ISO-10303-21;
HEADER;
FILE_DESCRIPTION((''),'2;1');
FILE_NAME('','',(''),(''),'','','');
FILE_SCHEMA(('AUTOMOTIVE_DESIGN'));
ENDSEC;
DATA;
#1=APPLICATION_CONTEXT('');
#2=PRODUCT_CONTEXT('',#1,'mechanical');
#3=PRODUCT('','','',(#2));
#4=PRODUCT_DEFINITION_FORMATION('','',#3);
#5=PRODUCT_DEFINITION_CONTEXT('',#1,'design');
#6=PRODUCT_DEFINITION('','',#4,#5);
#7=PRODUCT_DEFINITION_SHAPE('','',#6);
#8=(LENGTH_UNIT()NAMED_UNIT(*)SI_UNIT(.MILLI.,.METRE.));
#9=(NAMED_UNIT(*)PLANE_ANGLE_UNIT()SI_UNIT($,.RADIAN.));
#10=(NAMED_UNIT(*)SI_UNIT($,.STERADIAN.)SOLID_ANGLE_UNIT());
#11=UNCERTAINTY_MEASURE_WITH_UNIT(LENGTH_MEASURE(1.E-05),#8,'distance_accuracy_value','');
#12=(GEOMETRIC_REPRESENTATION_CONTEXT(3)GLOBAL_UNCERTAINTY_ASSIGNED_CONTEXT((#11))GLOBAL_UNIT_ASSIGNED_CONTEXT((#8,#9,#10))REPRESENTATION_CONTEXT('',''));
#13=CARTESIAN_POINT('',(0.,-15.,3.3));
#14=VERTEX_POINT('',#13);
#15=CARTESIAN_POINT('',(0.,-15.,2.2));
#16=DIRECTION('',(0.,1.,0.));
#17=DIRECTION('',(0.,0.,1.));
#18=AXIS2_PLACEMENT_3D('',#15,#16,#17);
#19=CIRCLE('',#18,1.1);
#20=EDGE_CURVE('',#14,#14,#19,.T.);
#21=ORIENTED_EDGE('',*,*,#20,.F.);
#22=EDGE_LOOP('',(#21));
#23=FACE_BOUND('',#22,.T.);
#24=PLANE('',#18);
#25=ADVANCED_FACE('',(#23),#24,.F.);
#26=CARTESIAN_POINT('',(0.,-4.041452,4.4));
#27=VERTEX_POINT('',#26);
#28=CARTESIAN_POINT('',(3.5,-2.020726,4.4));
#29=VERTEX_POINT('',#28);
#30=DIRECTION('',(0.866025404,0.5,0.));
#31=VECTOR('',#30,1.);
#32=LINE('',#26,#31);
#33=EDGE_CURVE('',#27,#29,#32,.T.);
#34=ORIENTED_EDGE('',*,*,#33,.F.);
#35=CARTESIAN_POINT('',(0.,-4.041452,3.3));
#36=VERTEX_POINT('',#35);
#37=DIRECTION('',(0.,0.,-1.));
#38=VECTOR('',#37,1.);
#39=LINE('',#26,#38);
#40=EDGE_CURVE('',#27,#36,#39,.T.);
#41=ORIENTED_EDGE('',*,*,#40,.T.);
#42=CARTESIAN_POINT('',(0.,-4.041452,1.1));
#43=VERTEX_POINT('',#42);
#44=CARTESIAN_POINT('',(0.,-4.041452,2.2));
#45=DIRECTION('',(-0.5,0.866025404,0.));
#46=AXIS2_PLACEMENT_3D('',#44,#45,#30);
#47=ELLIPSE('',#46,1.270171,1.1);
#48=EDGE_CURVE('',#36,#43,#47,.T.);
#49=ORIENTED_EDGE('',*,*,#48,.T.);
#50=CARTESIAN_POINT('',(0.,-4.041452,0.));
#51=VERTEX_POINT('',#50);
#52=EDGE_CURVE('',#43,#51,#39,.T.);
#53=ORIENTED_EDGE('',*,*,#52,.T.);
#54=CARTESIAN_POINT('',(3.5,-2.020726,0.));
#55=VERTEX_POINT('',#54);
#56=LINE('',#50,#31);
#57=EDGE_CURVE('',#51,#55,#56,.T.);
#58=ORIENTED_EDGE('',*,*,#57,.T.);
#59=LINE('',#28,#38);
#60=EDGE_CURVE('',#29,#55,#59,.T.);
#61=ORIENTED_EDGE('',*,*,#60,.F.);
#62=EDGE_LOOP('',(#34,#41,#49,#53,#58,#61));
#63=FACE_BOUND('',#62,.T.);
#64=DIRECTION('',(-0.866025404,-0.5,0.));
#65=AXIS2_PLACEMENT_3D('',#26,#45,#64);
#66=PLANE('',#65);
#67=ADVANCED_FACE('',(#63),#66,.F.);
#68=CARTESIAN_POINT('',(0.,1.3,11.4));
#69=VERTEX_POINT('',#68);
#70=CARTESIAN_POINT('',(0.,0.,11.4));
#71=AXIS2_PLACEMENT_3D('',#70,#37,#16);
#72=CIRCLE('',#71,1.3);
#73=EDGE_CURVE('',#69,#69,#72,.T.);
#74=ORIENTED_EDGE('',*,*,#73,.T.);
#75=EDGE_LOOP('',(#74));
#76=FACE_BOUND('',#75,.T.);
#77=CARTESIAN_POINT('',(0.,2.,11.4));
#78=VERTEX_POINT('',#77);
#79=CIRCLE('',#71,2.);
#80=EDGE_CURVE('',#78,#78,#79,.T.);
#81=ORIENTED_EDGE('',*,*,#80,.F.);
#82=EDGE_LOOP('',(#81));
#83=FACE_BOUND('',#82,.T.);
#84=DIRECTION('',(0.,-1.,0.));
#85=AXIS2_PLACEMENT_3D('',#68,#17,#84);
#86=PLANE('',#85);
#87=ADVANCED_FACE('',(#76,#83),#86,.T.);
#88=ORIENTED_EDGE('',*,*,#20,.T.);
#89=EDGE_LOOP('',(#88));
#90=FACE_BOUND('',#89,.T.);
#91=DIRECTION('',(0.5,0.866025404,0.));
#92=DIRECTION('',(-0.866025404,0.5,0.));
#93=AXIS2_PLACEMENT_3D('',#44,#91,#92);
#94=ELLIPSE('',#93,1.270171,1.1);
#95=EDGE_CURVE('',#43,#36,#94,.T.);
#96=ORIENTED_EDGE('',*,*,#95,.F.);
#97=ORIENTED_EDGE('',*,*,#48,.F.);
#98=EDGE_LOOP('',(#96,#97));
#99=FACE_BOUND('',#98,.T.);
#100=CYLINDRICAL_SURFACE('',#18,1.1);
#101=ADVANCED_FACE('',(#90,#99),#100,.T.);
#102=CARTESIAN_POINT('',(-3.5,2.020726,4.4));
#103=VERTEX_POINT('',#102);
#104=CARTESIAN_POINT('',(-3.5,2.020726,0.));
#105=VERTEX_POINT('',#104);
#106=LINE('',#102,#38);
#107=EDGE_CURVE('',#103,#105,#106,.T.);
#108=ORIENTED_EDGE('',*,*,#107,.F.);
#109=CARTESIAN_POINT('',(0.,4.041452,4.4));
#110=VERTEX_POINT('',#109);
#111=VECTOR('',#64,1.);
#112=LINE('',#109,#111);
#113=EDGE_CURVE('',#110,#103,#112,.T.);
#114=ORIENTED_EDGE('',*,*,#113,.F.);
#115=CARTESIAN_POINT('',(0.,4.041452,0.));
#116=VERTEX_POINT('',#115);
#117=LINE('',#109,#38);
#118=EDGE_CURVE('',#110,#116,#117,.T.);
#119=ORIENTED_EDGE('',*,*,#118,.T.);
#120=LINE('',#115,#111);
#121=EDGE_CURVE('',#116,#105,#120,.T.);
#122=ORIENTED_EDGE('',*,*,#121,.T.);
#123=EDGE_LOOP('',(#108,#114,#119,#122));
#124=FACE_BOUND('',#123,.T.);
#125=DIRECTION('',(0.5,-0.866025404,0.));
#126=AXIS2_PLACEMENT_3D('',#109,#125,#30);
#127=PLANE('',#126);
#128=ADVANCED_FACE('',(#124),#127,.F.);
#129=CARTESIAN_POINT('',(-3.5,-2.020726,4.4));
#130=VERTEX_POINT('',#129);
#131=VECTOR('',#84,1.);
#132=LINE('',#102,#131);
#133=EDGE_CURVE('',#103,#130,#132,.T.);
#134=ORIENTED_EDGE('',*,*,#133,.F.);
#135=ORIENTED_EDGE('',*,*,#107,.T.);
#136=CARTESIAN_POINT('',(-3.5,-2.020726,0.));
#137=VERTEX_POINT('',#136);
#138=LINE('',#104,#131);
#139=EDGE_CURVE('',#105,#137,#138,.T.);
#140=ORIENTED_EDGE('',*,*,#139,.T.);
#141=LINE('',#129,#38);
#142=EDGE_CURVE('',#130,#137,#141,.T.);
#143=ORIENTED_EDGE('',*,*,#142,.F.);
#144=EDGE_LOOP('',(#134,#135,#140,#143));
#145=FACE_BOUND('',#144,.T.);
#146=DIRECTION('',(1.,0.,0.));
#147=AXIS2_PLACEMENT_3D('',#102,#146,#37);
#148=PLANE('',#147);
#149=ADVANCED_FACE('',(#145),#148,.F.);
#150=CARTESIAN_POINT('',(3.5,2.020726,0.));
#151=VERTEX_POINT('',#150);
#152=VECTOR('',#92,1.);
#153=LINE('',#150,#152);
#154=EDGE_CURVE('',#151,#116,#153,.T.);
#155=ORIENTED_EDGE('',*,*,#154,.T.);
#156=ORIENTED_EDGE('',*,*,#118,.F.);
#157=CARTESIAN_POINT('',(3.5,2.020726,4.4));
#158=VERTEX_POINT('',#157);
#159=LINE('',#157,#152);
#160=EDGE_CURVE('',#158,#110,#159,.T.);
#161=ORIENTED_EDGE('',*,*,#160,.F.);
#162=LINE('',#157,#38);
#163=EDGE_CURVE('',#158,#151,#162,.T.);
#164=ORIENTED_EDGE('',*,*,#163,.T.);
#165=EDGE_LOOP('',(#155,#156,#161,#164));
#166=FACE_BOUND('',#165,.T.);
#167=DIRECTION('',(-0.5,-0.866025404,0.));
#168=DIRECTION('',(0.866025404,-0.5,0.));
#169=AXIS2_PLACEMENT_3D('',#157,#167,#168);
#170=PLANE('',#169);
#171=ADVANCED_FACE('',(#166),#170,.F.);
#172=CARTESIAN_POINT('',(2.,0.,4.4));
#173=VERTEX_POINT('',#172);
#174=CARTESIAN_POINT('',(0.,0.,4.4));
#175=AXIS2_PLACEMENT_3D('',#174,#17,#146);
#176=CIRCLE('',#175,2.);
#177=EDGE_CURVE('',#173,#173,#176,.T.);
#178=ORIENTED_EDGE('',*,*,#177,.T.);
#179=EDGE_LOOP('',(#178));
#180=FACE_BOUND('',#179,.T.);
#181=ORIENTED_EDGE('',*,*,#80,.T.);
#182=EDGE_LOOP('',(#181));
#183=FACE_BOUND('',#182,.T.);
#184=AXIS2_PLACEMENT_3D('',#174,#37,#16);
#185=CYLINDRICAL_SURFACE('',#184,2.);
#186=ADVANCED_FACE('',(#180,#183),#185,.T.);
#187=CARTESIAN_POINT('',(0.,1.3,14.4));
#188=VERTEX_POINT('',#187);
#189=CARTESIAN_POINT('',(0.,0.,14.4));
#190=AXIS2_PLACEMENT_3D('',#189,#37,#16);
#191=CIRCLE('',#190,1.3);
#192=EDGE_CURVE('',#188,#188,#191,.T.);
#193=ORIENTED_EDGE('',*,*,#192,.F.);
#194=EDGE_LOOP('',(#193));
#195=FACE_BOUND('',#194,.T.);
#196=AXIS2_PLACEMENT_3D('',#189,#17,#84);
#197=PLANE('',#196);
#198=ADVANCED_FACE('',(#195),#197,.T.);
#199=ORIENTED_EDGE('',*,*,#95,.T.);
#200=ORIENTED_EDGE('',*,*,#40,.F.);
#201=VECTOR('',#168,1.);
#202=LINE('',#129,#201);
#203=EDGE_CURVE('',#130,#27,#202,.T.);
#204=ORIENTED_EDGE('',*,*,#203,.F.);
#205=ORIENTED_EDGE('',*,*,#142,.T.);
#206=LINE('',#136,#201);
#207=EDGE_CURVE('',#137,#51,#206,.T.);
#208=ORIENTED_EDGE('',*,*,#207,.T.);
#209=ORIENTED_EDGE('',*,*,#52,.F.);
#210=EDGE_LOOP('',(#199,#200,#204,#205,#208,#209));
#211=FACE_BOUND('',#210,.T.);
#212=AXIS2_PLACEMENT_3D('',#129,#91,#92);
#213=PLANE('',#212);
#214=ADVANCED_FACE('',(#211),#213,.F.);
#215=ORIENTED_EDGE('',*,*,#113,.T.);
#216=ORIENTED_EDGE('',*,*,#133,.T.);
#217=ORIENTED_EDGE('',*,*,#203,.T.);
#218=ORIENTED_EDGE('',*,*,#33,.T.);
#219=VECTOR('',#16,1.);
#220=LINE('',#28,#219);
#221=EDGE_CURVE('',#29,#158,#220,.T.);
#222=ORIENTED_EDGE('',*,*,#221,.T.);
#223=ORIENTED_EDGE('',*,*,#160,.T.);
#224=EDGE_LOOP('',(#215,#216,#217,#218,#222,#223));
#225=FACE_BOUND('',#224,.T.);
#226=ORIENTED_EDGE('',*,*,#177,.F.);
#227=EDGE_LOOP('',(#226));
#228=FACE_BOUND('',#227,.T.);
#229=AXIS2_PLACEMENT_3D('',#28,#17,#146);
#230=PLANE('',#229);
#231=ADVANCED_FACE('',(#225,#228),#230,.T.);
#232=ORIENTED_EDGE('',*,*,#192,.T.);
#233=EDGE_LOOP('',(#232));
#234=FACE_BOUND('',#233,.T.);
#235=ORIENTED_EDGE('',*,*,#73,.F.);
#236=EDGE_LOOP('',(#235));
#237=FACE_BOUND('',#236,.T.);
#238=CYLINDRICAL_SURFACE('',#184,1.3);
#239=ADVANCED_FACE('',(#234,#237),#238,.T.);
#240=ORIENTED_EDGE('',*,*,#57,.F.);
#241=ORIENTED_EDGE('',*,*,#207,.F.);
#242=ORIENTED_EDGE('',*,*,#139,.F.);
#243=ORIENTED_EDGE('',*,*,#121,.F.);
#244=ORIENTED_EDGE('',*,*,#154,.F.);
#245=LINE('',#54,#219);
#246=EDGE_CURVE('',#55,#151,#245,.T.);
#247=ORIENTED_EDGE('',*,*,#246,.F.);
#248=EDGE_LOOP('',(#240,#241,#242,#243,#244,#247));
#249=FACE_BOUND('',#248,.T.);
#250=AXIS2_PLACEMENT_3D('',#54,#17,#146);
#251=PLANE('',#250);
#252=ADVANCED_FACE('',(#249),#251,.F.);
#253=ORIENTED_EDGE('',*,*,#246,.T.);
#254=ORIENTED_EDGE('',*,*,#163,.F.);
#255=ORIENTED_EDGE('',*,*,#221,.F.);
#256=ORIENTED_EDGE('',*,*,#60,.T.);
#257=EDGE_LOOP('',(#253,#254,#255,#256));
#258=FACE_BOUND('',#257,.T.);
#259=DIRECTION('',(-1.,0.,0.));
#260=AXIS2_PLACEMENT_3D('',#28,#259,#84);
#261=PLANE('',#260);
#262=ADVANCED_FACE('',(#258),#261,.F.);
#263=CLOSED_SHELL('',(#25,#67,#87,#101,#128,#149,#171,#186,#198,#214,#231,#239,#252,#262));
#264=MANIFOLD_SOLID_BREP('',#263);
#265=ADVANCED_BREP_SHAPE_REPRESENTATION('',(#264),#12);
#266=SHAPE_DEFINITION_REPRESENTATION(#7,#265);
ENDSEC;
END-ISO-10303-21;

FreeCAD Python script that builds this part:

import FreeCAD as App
import Part
import Sketcher
Q = App.Units.Quantity

doc = App.newDocument("Part")
params = doc.addObject("Spreadsheet::Sheet", "Params")
for row, (alias, value) in enumerate([
    ("pad1_length", "4.4 mm"),
    ("sketch2_width", "2 mm"),
    ("sketch2_height", "10 mm"),
    ("sketch2_height2", "7 mm"),
    ("sketch2_width2", "1.3 mm"),
    ("revolution_angle", "360 deg"),
    ("sketch3_diameter", "2.2 mm"),
    ("pad2_length", "15 mm"),
], start=1):
    params.set(f"A{row}", alias)
    params.set(f"B{row}", "=" + value)
    params.setAlias(f"B{row}", alias)

body = doc.addObject("PartDesign::Body", "Body")

sketch1 = body.newObject("Sketcher::SketchObject", "Sketch")
sketch1.AttachmentSupport = (doc.getObject("XY_Plane"), [""])
sketch1.MapMode = "FlatFace"
sketch1.addGeometry([
    Part.LineSegment(App.Vector(3.5, -2.020726, 0), App.Vector(3.5, 2.020726, 0)),
    Part.LineSegment(App.Vector(3.5, 2.020726, 0), App.Vector(0, 4.041452, 0)),
    Part.LineSegment(App.Vector(0, 4.041452, 0), App.Vector(-3.5, 2.020726, 0)),
    Part.LineSegment(App.Vector(-3.5, 2.020726, 0), App.Vector(-3.5, -2.020726, 0)),
    Part.LineSegment(App.Vector(-3.5, -2.020726, 0), App.Vector(0, -4.041452, 0)),
    Part.LineSegment(App.Vector(0, -4.041452, 0), App.Vector(3.5, -2.020726, 0)),
], False)
sketch1.addConstraint([
    Sketcher.Constraint("Coincident", 0, 2, 1, 1),
    Sketcher.Constraint("Coincident", 1, 2, 2, 1),
    Sketcher.Constraint("Coincident", 2, 2, 3, 1),
    Sketcher.Constraint("Coincident", 3, 2, 4, 1),
    Sketcher.Constraint("Coincident", 4, 2, 5, 1),
    Sketcher.Constraint("Coincident", 5, 2, 0, 1),
    Sketcher.Constraint("Vertical", 0),
    Sketcher.Constraint("Vertical", 3),
    Sketcher.Constraint("Symmetric", 0, 2, 3, 2, -1, 1),
    Sketcher.Constraint("Symmetric", 1, 2, 4, 2, -1, 1),
    Sketcher.Constraint("PointOnObject", 1, 2, -2),
    Sketcher.Constraint("Parallel", 2, 5),
    Sketcher.Constraint("Horizontal", 0, 2, 2, 2),
    Sketcher.Constraint("Angle", 1, Q("150 deg")),
    Sketcher.Constraint("DistanceX", 2, 2, 0, 2, Q("7 mm")),
    Sketcher.Constraint("DistanceY", 0, 1, 0, 2, Q("4.041452 mm")),
])
pad1 = body.newObject("PartDesign::Pad", "Pad")
pad1.Profile = sketch1
pad1.setExpression("Length", "Params.pad1_length")

sketch2 = body.newObject("Sketcher::SketchObject", "Sketch001")
sketch2.AttachmentSupport = (doc.getObject("YZ_Plane"), [""])
sketch2.MapMode = "FlatFace"
sketch2.addGeometry([
    Part.LineSegment(App.Vector(1.3, 14.4, 0), App.Vector(0, 14.4, 0)),
    Part.LineSegment(App.Vector(0, 14.4, 0), App.Vector(0, 4.4, 0)),
    Part.LineSegment(App.Vector(0, 4.4, 0), App.Vector(2, 4.4, 0)),
    Part.LineSegment(App.Vector(2, 4.4, 0), App.Vector(2, 11.4, 0)),
    Part.LineSegment(App.Vector(2, 11.4, 0), App.Vector(1.3, 11.4, 0)),
    Part.LineSegment(App.Vector(1.3, 11.4, 0), App.Vector(1.3, 14.4, 0)),
], False)
sketch2.addConstraint([
    Sketcher.Constraint("Coincident", 0, 2, 1, 1),
    Sketcher.Constraint("Coincident", 1, 2, 2, 1),
    Sketcher.Constraint("Coincident", 2, 2, 3, 1),
    Sketcher.Constraint("Coincident", 3, 2, 4, 1),
    Sketcher.Constraint("Coincident", 4, 2, 5, 1),
    Sketcher.Constraint("Coincident", 5, 2, 0, 1),
    Sketcher.Constraint("Horizontal", 0),
    Sketcher.Constraint("Vertical", 1),
    Sketcher.Constraint("Horizontal", 2),
    Sketcher.Constraint("Vertical", 3),
    Sketcher.Constraint("Horizontal", 4),
    Sketcher.Constraint("Vertical", 5),
    Sketcher.Constraint("PointOnObject", 0, 2, -2),
    Sketcher.Constraint("DistanceX", 2, 1, 2, 2, Q("2 mm")),
    Sketcher.Constraint("DistanceY", 1, 2, 1, 1, Q("10 mm")),
    Sketcher.Constraint("DistanceY", 3, 1, 3, 2, Q("7 mm")),
    Sketcher.Constraint("DistanceX", 0, 2, 0, 1, Q("1.3 mm")),
    Sketcher.Constraint("DistanceY", -1, 1, 0, 2, Q("14.4 mm")),
])
sketch2.setExpression("Constraints[13]", "Params.sketch2_width")
sketch2.setExpression("Constraints[14]", "Params.sketch2_height")
sketch2.setExpression("Constraints[15]", "Params.sketch2_height2")
sketch2.setExpression("Constraints[16]", "Params.sketch2_width2")
revolution = body.newObject("PartDesign::Revolution", "Revolution")
revolution.Profile = sketch2
revolution.ReferenceAxis = (sketch2, ["V_Axis"])
revolution.setExpression("Angle", "Params.revolution_angle")

sketch3 = body.newObject("Sketcher::SketchObject", "Sketch002")
sketch3.AttachmentSupport = (doc.getObject("XZ_Plane"), [""])
sketch3.MapMode = "FlatFace"
sketch3.addGeometry(Part.Circle(App.Vector(0, 2.2, 0), App.Vector(0, 0, 1), 1.1), False)
sketch3.addConstraint([
    Sketcher.Constraint("PointOnObject", 0, 3, -2),
    Sketcher.Constraint("Diameter", 0, Q("2.2 mm")),
    Sketcher.Constraint("DistanceY", -1, 1, 0, 3, Q("2.2 mm")),
])
sketch3.setExpression("Constraints[1]", "Params.sketch3_diameter")
pad2 = body.newObject("PartDesign::Pad", "Pad001")
pad2.Profile = sketch3
pad2.setExpression("Length", "Params.pad2_length")

doc.recompute()
